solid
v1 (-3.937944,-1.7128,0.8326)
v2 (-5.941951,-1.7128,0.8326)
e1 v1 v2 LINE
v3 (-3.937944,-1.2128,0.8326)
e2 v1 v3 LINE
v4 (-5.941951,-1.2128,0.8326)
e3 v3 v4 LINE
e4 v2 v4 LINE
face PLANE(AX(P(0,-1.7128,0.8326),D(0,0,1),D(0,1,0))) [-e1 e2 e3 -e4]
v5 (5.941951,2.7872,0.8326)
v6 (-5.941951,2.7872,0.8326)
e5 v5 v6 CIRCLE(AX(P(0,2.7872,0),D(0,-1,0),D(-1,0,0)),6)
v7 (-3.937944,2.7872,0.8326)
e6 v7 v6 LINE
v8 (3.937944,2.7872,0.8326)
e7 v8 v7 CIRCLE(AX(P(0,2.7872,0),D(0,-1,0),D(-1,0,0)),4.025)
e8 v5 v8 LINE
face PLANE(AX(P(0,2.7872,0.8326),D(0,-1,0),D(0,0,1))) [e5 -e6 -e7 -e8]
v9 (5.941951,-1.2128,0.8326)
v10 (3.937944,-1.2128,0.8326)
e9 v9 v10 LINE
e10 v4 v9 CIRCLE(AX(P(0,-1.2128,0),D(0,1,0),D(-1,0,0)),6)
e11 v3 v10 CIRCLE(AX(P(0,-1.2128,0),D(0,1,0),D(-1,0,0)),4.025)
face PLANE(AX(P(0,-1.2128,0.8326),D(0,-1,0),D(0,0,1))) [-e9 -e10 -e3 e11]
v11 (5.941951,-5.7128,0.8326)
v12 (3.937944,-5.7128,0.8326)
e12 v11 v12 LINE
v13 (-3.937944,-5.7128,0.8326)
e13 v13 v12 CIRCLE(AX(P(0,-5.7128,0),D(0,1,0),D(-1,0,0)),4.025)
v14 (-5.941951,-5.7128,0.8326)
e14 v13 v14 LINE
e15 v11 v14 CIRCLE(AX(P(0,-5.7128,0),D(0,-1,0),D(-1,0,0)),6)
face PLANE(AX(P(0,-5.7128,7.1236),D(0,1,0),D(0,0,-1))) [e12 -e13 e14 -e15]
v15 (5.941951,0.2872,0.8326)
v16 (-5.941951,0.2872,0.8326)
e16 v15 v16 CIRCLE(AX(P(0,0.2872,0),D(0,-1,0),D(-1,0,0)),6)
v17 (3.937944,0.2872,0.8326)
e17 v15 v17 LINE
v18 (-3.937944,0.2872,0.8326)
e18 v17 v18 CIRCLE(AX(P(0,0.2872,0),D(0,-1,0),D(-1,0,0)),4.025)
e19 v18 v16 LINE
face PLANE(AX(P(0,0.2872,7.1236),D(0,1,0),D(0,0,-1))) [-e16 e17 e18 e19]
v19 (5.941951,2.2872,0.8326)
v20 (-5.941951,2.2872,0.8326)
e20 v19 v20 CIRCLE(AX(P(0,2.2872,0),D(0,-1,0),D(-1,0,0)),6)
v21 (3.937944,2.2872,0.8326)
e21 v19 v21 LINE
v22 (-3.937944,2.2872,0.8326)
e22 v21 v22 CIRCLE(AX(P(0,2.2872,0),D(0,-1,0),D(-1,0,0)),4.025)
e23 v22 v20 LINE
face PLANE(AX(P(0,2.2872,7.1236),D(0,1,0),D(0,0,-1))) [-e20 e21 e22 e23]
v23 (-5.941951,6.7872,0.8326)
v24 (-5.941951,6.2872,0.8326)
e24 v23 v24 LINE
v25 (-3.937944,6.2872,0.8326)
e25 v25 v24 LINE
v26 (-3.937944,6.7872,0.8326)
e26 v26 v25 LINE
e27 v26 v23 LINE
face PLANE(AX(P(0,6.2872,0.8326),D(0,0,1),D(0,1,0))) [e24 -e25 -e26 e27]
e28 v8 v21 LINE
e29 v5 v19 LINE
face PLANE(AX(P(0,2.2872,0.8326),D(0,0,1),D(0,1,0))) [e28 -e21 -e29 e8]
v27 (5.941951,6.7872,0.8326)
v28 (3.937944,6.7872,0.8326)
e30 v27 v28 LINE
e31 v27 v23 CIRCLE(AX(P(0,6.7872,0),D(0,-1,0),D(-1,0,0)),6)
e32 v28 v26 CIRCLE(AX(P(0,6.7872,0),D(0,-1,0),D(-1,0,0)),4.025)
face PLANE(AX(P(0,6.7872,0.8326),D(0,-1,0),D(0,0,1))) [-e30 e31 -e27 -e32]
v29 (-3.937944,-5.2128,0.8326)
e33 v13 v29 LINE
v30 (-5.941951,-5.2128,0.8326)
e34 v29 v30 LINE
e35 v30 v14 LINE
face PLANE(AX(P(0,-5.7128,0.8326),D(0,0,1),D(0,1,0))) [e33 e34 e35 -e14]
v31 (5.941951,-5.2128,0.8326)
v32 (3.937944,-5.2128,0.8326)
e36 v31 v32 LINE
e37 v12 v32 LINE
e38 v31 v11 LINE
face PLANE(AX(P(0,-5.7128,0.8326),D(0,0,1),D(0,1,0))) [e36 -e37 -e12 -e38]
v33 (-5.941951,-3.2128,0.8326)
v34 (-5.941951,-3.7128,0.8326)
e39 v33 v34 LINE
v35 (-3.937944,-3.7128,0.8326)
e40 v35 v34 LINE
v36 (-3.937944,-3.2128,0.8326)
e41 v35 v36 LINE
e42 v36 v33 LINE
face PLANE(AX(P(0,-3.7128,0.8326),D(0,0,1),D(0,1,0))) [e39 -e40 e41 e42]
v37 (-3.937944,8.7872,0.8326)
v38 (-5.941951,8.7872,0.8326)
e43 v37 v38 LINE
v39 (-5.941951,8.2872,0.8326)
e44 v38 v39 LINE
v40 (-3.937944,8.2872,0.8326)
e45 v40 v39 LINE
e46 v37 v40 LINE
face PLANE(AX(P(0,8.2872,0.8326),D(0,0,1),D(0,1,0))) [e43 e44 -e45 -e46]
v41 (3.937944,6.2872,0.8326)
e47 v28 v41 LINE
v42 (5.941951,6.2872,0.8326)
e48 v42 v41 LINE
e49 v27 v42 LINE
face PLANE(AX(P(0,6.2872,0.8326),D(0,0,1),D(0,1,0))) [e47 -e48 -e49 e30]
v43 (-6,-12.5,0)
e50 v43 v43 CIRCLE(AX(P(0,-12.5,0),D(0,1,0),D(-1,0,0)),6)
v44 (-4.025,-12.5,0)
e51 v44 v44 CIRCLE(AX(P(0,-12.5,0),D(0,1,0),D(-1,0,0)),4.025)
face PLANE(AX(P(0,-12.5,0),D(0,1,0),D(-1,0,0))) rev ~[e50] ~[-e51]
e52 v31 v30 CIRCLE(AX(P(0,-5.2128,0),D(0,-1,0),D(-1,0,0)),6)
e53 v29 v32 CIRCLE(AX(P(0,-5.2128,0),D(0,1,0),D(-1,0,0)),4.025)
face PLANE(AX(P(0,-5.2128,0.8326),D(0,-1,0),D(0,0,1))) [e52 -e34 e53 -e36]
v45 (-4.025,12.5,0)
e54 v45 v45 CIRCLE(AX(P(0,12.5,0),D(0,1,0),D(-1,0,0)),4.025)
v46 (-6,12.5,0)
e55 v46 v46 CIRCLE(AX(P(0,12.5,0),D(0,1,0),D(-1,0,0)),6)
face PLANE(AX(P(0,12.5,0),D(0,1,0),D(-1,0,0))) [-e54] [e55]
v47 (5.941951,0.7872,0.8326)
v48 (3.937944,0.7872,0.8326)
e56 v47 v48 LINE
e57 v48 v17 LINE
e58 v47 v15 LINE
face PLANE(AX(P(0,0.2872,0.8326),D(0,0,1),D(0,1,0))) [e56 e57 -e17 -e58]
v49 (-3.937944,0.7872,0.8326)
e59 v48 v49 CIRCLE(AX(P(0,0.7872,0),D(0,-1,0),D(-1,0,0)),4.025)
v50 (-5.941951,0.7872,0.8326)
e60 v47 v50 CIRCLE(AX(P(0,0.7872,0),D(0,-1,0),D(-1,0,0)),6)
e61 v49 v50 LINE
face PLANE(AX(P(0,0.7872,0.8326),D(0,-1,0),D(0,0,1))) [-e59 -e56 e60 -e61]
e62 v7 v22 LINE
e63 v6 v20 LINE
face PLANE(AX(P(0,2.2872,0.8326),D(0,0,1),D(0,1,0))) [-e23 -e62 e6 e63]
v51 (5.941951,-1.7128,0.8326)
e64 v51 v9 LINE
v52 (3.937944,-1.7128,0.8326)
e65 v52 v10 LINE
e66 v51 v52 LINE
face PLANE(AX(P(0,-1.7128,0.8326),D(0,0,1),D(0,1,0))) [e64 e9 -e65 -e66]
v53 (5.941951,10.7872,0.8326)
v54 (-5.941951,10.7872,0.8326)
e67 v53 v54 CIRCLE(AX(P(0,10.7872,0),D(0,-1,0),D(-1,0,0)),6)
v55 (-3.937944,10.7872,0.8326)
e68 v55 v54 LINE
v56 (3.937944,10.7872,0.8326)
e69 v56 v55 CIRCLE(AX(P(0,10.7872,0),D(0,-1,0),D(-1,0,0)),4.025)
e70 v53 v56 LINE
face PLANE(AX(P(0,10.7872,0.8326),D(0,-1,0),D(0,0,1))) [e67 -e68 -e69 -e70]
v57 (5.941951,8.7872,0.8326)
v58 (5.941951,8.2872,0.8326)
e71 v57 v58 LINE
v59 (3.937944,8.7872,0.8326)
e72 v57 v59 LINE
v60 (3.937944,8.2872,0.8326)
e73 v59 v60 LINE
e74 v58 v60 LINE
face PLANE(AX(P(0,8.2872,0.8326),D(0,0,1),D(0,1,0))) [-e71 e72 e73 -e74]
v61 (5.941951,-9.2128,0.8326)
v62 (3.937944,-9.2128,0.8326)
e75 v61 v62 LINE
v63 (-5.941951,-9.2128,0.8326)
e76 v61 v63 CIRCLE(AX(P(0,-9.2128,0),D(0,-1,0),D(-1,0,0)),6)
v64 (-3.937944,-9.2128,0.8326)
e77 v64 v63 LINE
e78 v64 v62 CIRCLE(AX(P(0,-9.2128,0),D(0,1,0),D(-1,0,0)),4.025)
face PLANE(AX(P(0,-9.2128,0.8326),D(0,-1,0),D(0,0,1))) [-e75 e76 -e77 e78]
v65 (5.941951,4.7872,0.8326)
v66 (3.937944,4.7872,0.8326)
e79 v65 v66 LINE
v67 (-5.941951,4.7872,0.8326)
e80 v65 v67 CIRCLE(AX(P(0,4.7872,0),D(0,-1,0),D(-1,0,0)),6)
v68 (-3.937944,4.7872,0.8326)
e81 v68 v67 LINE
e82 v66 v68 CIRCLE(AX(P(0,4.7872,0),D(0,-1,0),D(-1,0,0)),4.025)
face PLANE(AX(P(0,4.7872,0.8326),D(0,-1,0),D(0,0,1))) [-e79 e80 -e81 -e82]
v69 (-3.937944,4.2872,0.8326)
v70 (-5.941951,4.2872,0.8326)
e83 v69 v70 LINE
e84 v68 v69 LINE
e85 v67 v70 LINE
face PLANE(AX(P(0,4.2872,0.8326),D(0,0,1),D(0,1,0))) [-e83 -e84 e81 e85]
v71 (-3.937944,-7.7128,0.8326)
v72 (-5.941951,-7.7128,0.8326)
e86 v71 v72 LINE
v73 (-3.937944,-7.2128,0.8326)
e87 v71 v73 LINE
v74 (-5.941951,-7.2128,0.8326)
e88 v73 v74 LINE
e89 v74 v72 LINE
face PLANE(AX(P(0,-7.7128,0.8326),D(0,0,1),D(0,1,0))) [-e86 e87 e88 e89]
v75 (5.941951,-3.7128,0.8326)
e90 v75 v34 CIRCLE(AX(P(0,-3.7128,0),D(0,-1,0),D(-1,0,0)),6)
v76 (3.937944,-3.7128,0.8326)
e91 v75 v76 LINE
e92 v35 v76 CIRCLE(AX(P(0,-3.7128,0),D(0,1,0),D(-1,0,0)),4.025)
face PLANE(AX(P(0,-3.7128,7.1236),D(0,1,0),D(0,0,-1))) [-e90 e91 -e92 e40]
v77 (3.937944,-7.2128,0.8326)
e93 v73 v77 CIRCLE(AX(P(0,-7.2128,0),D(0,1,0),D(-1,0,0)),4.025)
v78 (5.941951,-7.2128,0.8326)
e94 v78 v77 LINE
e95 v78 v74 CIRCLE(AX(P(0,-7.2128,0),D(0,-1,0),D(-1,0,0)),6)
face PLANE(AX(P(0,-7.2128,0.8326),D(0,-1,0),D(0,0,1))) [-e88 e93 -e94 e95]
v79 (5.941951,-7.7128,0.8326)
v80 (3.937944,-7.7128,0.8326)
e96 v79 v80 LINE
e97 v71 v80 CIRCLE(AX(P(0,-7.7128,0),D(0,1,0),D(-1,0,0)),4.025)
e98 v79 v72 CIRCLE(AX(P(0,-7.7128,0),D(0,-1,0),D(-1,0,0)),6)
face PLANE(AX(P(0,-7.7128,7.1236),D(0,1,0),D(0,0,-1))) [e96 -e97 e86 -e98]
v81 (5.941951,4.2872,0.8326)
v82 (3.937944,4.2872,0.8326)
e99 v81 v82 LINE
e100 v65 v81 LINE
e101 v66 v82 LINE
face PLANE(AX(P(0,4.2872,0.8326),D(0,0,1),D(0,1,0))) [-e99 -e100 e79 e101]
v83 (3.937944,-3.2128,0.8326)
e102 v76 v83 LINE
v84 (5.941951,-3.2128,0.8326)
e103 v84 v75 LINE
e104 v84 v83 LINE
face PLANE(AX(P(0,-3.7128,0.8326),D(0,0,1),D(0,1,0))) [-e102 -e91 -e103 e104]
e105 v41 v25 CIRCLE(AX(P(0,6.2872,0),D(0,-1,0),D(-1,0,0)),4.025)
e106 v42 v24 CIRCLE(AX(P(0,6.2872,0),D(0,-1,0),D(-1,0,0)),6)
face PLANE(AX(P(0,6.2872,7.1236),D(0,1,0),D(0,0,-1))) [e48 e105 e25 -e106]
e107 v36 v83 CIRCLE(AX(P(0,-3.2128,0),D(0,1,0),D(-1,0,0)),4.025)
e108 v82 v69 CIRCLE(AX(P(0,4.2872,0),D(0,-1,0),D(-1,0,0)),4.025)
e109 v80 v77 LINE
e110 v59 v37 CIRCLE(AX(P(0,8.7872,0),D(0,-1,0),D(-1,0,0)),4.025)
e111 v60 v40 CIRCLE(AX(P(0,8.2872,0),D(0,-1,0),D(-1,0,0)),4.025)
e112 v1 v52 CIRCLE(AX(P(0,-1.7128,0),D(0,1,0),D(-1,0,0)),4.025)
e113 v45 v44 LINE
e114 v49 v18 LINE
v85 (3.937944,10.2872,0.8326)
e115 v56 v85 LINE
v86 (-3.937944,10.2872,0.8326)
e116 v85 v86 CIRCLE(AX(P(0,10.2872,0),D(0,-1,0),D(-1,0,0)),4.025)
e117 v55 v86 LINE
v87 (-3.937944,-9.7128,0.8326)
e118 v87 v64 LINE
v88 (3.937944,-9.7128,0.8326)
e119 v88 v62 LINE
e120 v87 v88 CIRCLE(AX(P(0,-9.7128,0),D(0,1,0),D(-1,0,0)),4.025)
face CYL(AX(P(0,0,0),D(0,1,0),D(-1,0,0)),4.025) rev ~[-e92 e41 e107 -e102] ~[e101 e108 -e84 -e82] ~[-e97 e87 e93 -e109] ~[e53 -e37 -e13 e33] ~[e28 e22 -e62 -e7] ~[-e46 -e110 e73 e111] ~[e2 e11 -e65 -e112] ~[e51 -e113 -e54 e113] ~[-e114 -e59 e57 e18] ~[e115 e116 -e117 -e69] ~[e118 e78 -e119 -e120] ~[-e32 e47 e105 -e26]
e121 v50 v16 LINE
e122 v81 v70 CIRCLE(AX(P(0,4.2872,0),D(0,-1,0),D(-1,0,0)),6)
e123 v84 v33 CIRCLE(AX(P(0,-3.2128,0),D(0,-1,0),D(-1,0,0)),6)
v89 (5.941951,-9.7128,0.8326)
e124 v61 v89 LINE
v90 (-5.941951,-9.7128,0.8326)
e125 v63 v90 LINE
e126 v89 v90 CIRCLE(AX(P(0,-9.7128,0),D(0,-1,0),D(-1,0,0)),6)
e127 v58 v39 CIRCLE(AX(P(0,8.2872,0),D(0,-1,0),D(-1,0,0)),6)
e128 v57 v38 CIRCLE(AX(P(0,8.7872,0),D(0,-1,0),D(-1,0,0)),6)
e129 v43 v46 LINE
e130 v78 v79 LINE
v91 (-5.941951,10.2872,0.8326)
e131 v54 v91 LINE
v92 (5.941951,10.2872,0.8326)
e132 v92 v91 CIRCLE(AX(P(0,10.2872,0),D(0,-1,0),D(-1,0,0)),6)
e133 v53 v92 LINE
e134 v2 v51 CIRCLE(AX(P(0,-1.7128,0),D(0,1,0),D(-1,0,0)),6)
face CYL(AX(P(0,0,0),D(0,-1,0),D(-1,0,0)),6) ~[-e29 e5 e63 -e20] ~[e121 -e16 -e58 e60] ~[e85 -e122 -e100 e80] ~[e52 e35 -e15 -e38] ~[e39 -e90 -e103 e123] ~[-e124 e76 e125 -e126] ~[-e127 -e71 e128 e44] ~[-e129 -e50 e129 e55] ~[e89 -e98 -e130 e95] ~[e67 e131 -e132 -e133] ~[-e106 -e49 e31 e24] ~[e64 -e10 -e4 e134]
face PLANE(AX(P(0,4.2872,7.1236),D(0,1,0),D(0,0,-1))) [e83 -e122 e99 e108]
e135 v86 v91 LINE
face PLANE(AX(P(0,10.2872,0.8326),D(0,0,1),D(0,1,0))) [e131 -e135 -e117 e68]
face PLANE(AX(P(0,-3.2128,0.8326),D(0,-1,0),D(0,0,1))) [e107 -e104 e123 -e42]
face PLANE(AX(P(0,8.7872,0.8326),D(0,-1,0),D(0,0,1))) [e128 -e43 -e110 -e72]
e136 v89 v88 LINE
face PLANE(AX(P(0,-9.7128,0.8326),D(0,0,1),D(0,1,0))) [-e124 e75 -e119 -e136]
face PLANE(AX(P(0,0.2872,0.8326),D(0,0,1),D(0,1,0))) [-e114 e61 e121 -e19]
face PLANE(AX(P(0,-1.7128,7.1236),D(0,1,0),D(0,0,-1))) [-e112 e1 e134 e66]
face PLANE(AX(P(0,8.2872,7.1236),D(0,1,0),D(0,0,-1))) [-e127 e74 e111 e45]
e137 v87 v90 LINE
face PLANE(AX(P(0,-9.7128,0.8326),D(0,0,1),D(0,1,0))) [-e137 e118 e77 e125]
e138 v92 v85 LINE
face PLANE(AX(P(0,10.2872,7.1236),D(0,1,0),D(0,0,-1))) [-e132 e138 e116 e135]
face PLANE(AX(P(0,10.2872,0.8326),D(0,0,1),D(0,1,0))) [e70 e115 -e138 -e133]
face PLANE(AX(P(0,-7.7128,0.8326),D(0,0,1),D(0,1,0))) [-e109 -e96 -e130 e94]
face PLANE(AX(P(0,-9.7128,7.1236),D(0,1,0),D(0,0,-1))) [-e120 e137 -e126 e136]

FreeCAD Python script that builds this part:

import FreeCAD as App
import Part
import Sketcher
from FreeCAD import Vector
Q = App.Units.Quantity


def add_polygon(sketch, points):
    """Adds a closed chain of lines whose ends are joined by coincident constraints."""
    first, n = sketch.GeometryCount, len(points)
    for a, b in zip(points, points[1:] + points[:1]):
        sketch.addGeometry(Part.LineSegment(App.Vector(*a, 0), App.Vector(*b, 0)), False)
    for i in range(n):
        sketch.addConstraint(Sketcher.Constraint("Coincident", first + i, 2, first + (i + 1) % n, 1))

doc = App.newDocument("Part")
body = doc.addObject("PartDesign::Body", "Body")

# Sketch on XZ plane
sketch1 = body.newObject("Sketcher::SketchObject", "Sketch")
sketch1.AttachmentSupport = (doc.getObject("XZ_Plane"), [""])
sketch1.MapMode = "FlatFace"
sketch1.addGeometry(Part.Circle(Vector(0, 0, 0), Vector(0, 0, 1), 6), False)
sketch1.addGeometry(Part.Circle(Vector(0, 0, 0), Vector(0, 0, 1), 4), False)
sketch1.addConstraint(Sketcher.Constraint("Coincident", 0, 3, -1, 1))
sketch1.addConstraint(Sketcher.Constraint("Coincident", 1, 3, -1, 1))
sketch1.addConstraint(Sketcher.Constraint("Diameter", 0, Q("12 mm")))
sketch1.addConstraint(Sketcher.Constraint("Diameter", 1, Q("8.05 mm")))
pad1 = body.newObject("PartDesign::Pad", "Pad")
pad1.Profile = sketch1
pad1.Length = 25
pad1.Midplane = True

# Sketch on YZ plane
sketch2 = body.newObject("Sketcher::SketchObject", "Sketch001")
sketch2.AttachmentSupport = (doc.getObject("YZ_Plane"), [""])
sketch2.MapMode = "FlatFace"
add_polygon(sketch2, [(10.8, 0.8), (10.8, 7.1), (10.3, 7.1), (10.3, 0.8)])  # lines 0-3
sketch2.addConstraint(Sketcher.Constraint("Vertical", 0))
sketch2.addConstraint(Sketcher.Constraint("Horizontal", 1))
sketch2.addConstraint(Sketcher.Constraint("Vertical", 2))
sketch2.addConstraint(Sketcher.Constraint("Horizontal", 3))
sketch2.addConstraint(Sketcher.Constraint("DistanceX", 1, 2, 1, 1, Q("0.5 mm")))
sketch2.addConstraint(Sketcher.Constraint("DistanceY", 0, 1, 0, 2, Q("6.291 mm")))
sketch2.addConstraint(Sketcher.Constraint("DistanceX", -1, 1, 0, 2, Q("10.7872 mm")))
sketch2.addConstraint(Sketcher.Constraint("DistanceY", -1, 1, 0, 2, Q("7.1236 mm")))
pocket1 = body.newObject("PartDesign::Pocket", "Pocket")
pocket1.Profile = sketch2
pocket1.Length = 25
pocket1.Midplane = True
doc.recompute()

linearpattern = body.newObject("PartDesign::LinearPattern", "LinearPattern")
linearpattern.Originals = [pocket1]
linearpattern.Direction = (doc.getObject("Y_Axis"), [""])
linearpattern.Mode = "offset"
linearpattern.Offset = 2
linearpattern.Occurrences = 11
linearpattern.Reversed = True
body.Tip = linearpattern

doc.recompute()
